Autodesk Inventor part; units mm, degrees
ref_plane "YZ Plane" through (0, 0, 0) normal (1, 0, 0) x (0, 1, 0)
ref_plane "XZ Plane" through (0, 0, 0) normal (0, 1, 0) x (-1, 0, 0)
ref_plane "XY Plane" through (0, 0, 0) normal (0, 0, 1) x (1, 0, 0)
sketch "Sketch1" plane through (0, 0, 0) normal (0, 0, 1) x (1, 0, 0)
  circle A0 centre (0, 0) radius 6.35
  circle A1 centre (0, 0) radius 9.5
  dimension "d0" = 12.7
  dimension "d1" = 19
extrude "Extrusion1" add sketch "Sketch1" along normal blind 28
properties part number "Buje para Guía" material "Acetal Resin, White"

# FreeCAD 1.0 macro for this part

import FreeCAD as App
import Part
import Sketcher

V = App.Vector
Q = App.Units.Quantity

doc = App.newDocument("Part")
body = doc.addObject("PartDesign::Body", "Body")

# Sketch on XY plane
sketch1 = body.newObject("Sketcher::SketchObject", "Sketch")
sketch1.AttachmentSupport = (doc.getObject("XY_Plane"), [""])
sketch1.MapMode = "FlatFace"
sketch1.addGeometry(Part.Circle(V(0, 0, 0), V(0, 0, 1), 10), False)
sketch1.addGeometry(Part.Circle(V(0, 0, 0), V(0, 0, 1), 6), False)
sketch1.addConstraint(Sketcher.Constraint("Coincident", 0, 3, -1, 1))
sketch1.addConstraint(Sketcher.Constraint("Coincident", 1, 3, -1, 1))
sketch1.addConstraint(Sketcher.Constraint("Diameter", 0, Q("19 mm")))
sketch1.addConstraint(Sketcher.Constraint("Diameter", 1, Q("12.7 mm")))
pad1 = body.newObject("PartDesign::Pad", "Pad")
pad1.Profile = sketch1
pad1.Length = 28

doc.recompute()
